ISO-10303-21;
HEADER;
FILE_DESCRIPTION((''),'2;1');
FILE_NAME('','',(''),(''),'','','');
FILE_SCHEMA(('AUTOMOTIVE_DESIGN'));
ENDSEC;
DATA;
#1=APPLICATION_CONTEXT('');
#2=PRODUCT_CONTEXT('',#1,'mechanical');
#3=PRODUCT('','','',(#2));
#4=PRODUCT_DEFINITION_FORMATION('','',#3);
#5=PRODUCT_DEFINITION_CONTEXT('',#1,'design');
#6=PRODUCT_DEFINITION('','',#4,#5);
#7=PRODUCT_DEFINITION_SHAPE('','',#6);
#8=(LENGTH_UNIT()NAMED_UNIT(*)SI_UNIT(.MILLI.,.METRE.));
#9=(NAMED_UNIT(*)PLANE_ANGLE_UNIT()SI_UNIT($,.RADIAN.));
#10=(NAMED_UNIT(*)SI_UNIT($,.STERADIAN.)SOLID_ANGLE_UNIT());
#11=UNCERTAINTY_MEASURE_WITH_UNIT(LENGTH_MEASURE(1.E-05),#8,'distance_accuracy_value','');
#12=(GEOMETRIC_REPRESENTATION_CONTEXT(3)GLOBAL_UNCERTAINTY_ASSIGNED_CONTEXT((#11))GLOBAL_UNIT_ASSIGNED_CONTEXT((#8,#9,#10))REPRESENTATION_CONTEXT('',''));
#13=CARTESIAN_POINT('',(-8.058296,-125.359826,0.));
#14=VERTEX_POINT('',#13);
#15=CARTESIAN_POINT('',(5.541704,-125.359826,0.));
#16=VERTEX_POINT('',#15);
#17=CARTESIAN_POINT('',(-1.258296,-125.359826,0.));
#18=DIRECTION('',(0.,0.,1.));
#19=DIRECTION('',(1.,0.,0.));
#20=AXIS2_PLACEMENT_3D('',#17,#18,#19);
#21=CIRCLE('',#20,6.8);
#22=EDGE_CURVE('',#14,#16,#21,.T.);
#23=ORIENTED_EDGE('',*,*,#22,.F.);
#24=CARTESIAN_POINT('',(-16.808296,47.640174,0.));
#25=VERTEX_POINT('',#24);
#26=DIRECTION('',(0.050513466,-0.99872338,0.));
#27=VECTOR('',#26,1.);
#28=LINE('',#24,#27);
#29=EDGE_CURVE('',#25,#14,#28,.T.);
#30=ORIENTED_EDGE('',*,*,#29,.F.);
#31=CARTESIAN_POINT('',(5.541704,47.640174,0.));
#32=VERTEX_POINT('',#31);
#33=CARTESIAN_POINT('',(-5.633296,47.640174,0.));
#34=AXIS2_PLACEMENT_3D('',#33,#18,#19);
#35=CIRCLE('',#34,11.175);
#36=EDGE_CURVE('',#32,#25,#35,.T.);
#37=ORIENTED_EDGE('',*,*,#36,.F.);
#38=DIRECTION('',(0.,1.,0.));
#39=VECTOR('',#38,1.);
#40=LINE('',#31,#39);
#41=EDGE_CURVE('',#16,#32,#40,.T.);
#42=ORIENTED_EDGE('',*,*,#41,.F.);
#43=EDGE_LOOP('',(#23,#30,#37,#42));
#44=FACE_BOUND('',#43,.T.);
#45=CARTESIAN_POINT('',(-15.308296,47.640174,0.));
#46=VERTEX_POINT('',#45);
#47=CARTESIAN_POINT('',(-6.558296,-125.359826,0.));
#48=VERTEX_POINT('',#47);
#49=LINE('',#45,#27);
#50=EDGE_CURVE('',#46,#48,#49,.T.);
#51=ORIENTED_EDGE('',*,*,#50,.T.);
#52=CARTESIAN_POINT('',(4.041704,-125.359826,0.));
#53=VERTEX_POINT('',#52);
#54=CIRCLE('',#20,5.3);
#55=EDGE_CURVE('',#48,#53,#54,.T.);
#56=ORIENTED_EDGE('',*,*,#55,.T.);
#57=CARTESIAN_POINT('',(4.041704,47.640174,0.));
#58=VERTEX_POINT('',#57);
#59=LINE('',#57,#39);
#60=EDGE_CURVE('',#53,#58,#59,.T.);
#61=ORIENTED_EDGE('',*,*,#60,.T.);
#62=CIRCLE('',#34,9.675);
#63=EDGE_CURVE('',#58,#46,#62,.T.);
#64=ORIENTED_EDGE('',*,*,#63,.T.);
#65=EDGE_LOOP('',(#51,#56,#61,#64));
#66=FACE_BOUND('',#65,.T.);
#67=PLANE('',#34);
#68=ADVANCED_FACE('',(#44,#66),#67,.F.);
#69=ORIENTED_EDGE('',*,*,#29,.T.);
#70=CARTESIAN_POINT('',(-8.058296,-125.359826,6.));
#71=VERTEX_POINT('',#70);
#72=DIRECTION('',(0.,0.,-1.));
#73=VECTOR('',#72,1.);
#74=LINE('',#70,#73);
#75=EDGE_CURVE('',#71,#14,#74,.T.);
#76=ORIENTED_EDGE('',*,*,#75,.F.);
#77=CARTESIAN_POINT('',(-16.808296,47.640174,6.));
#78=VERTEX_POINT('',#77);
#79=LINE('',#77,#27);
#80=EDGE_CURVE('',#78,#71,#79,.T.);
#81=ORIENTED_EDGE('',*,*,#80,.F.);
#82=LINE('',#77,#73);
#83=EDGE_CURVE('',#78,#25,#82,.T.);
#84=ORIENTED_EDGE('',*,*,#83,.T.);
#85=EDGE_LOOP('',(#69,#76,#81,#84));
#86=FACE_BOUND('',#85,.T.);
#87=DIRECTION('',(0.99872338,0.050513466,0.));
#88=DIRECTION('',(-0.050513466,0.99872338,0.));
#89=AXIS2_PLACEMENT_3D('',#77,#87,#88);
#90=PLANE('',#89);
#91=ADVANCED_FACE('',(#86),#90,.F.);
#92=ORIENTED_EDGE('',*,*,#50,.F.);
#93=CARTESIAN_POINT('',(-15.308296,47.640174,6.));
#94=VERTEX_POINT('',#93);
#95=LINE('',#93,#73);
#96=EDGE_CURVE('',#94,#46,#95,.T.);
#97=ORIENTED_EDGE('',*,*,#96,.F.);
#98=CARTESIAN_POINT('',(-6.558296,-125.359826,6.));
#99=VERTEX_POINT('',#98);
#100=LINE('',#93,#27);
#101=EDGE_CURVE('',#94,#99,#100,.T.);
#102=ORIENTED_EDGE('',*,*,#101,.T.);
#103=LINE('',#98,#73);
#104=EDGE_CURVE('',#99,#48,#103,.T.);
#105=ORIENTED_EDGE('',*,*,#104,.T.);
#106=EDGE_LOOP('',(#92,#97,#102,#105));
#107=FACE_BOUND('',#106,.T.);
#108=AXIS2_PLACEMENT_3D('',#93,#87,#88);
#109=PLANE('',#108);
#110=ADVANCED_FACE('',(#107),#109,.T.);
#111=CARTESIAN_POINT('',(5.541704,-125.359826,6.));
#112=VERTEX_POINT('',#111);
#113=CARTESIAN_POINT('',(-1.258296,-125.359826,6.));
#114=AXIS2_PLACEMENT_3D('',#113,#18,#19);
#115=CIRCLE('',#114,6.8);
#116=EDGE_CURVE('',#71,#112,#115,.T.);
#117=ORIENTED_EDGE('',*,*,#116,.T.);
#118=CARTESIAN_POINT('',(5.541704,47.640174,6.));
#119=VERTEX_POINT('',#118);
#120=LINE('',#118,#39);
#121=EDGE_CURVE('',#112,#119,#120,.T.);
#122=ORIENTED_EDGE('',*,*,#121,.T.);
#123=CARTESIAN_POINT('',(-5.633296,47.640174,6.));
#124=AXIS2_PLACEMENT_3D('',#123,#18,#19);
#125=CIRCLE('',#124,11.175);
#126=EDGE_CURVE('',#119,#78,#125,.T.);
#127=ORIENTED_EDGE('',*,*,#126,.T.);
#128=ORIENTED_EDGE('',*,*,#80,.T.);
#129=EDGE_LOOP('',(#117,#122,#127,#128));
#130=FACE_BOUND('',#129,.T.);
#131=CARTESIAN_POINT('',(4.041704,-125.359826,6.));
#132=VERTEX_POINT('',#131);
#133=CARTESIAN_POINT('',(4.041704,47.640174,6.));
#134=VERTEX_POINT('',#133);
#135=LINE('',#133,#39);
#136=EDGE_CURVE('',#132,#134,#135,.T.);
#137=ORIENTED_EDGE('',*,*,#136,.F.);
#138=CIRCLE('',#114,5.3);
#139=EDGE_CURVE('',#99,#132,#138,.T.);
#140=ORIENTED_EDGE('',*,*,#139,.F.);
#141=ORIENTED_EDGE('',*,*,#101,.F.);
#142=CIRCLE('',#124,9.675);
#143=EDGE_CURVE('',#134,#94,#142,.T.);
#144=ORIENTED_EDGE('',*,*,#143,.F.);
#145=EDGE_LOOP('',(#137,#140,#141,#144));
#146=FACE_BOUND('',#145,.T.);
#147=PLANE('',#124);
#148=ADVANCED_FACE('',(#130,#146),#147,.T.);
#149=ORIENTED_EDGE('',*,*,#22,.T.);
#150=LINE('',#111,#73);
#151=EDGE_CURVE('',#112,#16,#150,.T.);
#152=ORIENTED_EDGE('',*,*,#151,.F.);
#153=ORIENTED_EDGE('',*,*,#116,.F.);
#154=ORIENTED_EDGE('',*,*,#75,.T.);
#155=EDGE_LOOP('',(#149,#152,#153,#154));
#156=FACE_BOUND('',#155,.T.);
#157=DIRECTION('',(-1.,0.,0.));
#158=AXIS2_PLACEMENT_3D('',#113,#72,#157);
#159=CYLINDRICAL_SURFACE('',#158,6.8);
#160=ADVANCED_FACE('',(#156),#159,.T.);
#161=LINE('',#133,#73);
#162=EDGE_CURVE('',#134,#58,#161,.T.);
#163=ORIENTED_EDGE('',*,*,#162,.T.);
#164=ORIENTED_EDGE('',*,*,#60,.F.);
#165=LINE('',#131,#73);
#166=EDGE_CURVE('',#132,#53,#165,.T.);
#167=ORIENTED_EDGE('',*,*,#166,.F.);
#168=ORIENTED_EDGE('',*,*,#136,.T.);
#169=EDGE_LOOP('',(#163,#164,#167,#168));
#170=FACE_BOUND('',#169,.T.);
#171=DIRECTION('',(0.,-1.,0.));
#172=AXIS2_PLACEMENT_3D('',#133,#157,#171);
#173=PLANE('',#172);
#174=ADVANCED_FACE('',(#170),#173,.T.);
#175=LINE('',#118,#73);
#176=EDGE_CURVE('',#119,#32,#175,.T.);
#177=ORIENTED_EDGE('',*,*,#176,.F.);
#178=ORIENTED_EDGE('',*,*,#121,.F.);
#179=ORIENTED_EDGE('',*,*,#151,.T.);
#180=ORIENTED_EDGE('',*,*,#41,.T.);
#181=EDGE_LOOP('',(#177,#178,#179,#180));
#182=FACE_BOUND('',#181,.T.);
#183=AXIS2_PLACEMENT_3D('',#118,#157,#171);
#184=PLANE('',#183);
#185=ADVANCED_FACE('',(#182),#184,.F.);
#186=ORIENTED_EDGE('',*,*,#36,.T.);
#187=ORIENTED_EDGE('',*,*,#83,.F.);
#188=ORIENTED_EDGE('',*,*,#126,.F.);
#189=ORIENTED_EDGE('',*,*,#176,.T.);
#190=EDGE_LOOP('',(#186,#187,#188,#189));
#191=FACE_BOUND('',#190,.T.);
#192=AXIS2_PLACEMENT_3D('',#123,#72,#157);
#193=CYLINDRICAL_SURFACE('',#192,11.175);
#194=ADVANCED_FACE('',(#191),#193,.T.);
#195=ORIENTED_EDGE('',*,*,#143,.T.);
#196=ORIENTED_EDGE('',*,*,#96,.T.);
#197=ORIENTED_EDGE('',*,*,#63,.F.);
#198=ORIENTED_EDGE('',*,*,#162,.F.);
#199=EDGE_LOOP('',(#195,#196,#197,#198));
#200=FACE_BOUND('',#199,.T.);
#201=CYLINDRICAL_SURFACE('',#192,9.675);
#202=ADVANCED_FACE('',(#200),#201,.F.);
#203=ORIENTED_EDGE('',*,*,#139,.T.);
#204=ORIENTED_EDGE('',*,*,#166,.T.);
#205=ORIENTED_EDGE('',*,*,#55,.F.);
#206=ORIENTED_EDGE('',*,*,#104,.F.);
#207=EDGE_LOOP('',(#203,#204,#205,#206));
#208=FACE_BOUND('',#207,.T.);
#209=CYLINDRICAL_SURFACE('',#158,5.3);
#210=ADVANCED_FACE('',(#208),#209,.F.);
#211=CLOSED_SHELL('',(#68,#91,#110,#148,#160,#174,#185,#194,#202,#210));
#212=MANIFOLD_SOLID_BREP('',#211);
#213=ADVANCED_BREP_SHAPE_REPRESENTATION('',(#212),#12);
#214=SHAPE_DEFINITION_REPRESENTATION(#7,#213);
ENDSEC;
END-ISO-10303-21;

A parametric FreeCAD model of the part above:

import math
import FreeCAD as App
import Part
import Sketcher
from FreeCAD import Vector
Q = App.Units.Quantity

doc = App.newDocument("Part")
body = doc.addObject("PartDesign::Body", "Body")

# Sketch on XY plane
sketch1 = doc.addObject("Sketcher::SketchObject", "Sketch")
body.addObject(sketch1)
sketch1.AttachmentSupport = (doc.XY_Plane, [""])
sketch1.MapMode = "FlatFace"
sketch1.addGeometry(Part.LineSegment(Vector(6, -125, 0), Vector(6, 48, 0)), False)
sketch1.addGeometry(Part.ArcOfCircle(Part.Circle(Vector(-6, 48, 0), Vector(0, 0, 1), 11), math.radians(0), math.radians(180)), False)
sketch1.addGeometry(Part.LineSegment(Vector(-17, 48, 0), Vector(-8, -125, 0)), False)
sketch1.addGeometry(Part.ArcOfCircle(Part.Circle(Vector(-1, -125, 0), Vector(0, 0, 1), 7), math.radians(180), math.radians(360)), False)
sketch1.addGeometry(Part.LineSegment(Vector(4, 48, 0), Vector(4, -125, 0)), False)
sketch1.addGeometry(Part.ArcOfCircle(Part.Circle(Vector(-1, -125, 0), Vector(0, 0, 1), 5), math.radians(180), math.radians(360)), False)
sketch1.addGeometry(Part.LineSegment(Vector(-7, -125, 0), Vector(-15, 48, 0)), False)
sketch1.addGeometry(Part.ArcOfCircle(Part.Circle(Vector(-6, 48, 0), Vector(0, 0, 1), 10), math.radians(0), math.radians(180)), False)
sketch1.addConstraint(Sketcher.Constraint("Tangent", 0, 2, 1, 1))
sketch1.addConstraint(Sketcher.Constraint("Coincident", 1, 2, 2, 1))
sketch1.addConstraint(Sketcher.Constraint("Coincident", 2, 2, 3, 1))
sketch1.addConstraint(Sketcher.Constraint("Tangent", 3, 2, 0, 1))
sketch1.addConstraint(Sketcher.Constraint("Tangent", 4, 2, 5, 2))
sketch1.addConstraint(Sketcher.Constraint("Coincident", 5, 1, 6, 1))
sketch1.addConstraint(Sketcher.Constraint("Coincident", 6, 2, 7, 2))
sketch1.addConstraint(Sketcher.Constraint("Tangent", 7, 1, 4, 1))
sketch1.addConstraint(Sketcher.Constraint("Vertical", 0))
sketch1.addConstraint(Sketcher.Constraint("Vertical", 4))
sketch1.addConstraint(Sketcher.Constraint("Coincident", 5, 3, 3, 3))
sketch1.addConstraint(Sketcher.Constraint("Coincident", 7, 3, 1, 3))
sketch1.addConstraint(Sketcher.Constraint("Parallel", 2, 6))
sketch1.addConstraint(Sketcher.Constraint("Horizontal", 0, 2, 1, 2))
sketch1.addConstraint(Sketcher.Constraint("Horizontal", 5, 3, 2, 2))
sketch1.addConstraint(Sketcher.Constraint("Horizontal", 4, 2, 5, 1))
sketch1.addConstraint(Sketcher.Constraint("Radius", 3, Q("6.8 mm")))
sketch1.addConstraint(Sketcher.Constraint("Radius", 5, Q("5.3 mm")))
sketch1.addConstraint(Sketcher.Constraint("DistanceY", 0, 1, 0, 2, Q("173 mm")))
sketch1.addConstraint(Sketcher.Constraint("Radius", 1, Q("11.175 mm")))
sketch1.addConstraint(Sketcher.Constraint("DistanceX", 1, 3, -1, 1, Q("5.633296 mm")))
sketch1.addConstraint(Sketcher.Constraint("DistanceY", -1, 1, 1, 3, Q("47.640174 mm")))
pad1 = doc.addObject("PartDesign::Pad", "Pad")
body.addObject(pad1)
pad1.Profile = sketch1
pad1.Length = 6

doc.recompute()
